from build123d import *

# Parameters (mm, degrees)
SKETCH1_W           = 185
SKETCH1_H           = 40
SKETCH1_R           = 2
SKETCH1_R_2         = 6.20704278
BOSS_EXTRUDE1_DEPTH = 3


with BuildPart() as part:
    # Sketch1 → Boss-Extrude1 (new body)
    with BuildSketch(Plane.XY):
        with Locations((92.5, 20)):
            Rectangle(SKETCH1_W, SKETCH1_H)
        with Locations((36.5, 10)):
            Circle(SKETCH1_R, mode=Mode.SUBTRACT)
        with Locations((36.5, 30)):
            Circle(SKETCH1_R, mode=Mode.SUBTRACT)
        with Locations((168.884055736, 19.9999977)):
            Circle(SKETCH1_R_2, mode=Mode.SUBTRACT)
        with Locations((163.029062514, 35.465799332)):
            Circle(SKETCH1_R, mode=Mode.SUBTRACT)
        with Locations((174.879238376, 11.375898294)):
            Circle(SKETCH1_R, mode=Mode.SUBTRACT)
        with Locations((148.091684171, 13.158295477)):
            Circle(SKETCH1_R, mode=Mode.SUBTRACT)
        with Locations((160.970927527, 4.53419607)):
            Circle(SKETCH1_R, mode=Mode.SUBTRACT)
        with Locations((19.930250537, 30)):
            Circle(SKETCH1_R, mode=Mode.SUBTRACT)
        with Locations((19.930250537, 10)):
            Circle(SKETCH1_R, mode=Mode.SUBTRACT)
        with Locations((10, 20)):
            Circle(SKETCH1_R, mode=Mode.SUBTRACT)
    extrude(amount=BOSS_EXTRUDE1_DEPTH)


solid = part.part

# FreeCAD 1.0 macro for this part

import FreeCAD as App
import Part
import Sketcher
Q = App.Units.Quantity


def add_polygon(sketch, points):
    """Adds a closed chain of lines whose ends are joined by coincident constraints."""
    first, n = sketch.GeometryCount, len(points)
    for a, b in zip(points, points[1:] + points[:1]):
        sketch.addGeometry(Part.LineSegment(App.Vector(*a, 0), App.Vector(*b, 0)), False)
    for i in range(n):
        sketch.addConstraint(Sketcher.Constraint("Coincident", first + i, 2, first + (i + 1) % n, 1))

doc = App.newDocument("Part")
body = doc.addObject("PartDesign::Body", "Body")

# Sketch on XY plane
sketch1 = body.newObject("Sketcher::SketchObject", "Sketch")
sketch1.AttachmentSupport = (doc.getObject("XY_Plane"), [""])
sketch1.MapMode = "FlatFace"
add_polygon(sketch1, [(0, 40), (0, 0), (185, 0), (185, 40)])  # lines 0-3
sketch1.addGeometry(Part.Circle(App.Vector(19.9, 10, 0), App.Vector(0, 0, 1), 2), False)  # 4
sketch1.addGeometry(Part.Circle(App.Vector(36.5, 10, 0), App.Vector(0, 0, 1), 2), False)  # 5
sketch1.addGeometry(Part.Circle(App.Vector(161, 4.5, 0), App.Vector(0, 0, 1), 2), False)  # 6
sketch1.addGeometry(Part.Circle(App.Vector(148.1, 13.2, 0), App.Vector(0, 0, 1), 2), False)  # 7
sketch1.addGeometry(Part.Circle(App.Vector(174.9, 11.4, 0), App.Vector(0, 0, 1), 2), False)  # 8
sketch1.addGeometry(Part.Circle(App.Vector(168.9, 20, 0), App.Vector(0, 0, 1), 6.2), False)  # 9
sketch1.addGeometry(Part.Circle(App.Vector(10, 20, 0), App.Vector(0, 0, 1), 2), False)  # 10
sketch1.addGeometry(Part.Circle(App.Vector(19.9, 30, 0), App.Vector(0, 0, 1), 2), False)  # 11
sketch1.addGeometry(Part.Circle(App.Vector(36.5, 30, 0), App.Vector(0, 0, 1), 2), False)  # 12
sketch1.addGeometry(Part.Circle(App.Vector(163, 35.5, 0), App.Vector(0, 0, 1), 2), False)  # 13
sketch1.addConstraint([
    Sketcher.Constraint("Vertical", 0),
    Sketcher.Constraint("Horizontal", 1),
    Sketcher.Constraint("Vertical", 2),
    Sketcher.Constraint("Horizontal", 3),
    Sketcher.Constraint("Coincident", 0, 2, -1, 1),
    Sketcher.Constraint("Equal", 4, 5),
    Sketcher.Constraint("Equal", 5, 6),
    Sketcher.Constraint("Equal", 6, 7),
    Sketcher.Constraint("Equal", 7, 8),
    Sketcher.Constraint("Equal", 8, 10),
    Sketcher.Constraint("Equal", 10, 11),
    Sketcher.Constraint("Equal", 11, 12),
    Sketcher.Constraint("Equal", 12, 13),
    Sketcher.Constraint("Horizontal", 4, 3, 5, 3),
    Sketcher.Constraint("Horizontal", 11, 3, 12, 3),
    Sketcher.Constraint("Vertical", 4, 3, 11, 3),
    Sketcher.Constraint("Vertical", 5, 3, 12, 3),
    Sketcher.Constraint("Diameter", 4, Q("4 mm")),
    Sketcher.Constraint("DistanceX", 1, 1, 1, 2, Q("185 mm")),
    Sketcher.Constraint("DistanceY", 0, 2, 0, 1, Q("40 mm")),
    Sketcher.Constraint("DistanceY", -1, 1, 4, 3, Q("10 mm")),
    Sketcher.Constraint("DistanceX", -1, 1, 10, 3, Q("10 mm")),
    Sketcher.Constraint("DistanceY", -1, 1, 10, 3, Q("20 mm")),
    Sketcher.Constraint("DistanceY", -1, 1, 11, 3, Q("30 mm")),
    Sketcher.Constraint("DistanceX", -1, 1, 5, 3, Q("36.5 mm")),
    Sketcher.Constraint("Diameter", 9, Q("12.414086 mm")),
    Sketcher.Constraint("DistanceY", -1, 1, 8, 3, Q("11.375898 mm")),
    Sketcher.Constraint("DistanceY", -1, 1, 13, 3, Q("35.465799 mm")),
    Sketcher.Constraint("DistanceY", 6, 3, 7, 3, Q("8.624099 mm")),
    Sketcher.Constraint("DistanceY", 8, 3, 9, 3, Q("8.624099 mm")),
    Sketcher.Constraint("DistanceY", 6, 3, 9, 3, Q("15.465802 mm")),
    Sketcher.Constraint("DistanceX", -1, 1, 4, 3, Q("19.930251 mm")),
    Sketcher.Constraint("DistanceX", -1, 1, 8, 3, Q("174.879238 mm")),
    Sketcher.Constraint("DistanceX", 6, 3, 8, 3, Q("13.908311 mm")),
    Sketcher.Constraint("DistanceX", 6, 3, 9, 3, Q("7.913128 mm")),
    Sketcher.Constraint("DistanceX", 7, 3, 9, 3, Q("20.792372 mm")),
    Sketcher.Constraint("DistanceX", 7, 3, 13, 3, Q("14.937378 mm")),
])
pad1 = body.newObject("PartDesign::Pad", "Pad")
pad1.Profile = sketch1
pad1.Length = 3

doc.recompute()
